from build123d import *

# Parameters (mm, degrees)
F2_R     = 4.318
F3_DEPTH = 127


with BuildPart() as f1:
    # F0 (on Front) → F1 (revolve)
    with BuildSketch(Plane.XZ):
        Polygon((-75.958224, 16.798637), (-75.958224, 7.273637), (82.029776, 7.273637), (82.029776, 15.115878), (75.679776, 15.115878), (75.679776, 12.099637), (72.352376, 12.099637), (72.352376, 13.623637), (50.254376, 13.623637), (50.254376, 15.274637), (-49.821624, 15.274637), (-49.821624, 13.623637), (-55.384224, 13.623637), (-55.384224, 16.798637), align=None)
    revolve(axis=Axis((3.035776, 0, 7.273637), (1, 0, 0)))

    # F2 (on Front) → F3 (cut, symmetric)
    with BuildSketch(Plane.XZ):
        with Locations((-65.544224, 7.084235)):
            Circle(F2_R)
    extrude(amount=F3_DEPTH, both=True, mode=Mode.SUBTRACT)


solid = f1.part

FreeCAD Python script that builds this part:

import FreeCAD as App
import Part
import Sketcher
Q = App.Units.Quantity


def add_polygon(sketch, points):
    """Adds a closed chain of lines whose ends are joined by coincident constraints."""
    first, n = sketch.GeometryCount, len(points)
    for a, b in zip(points, points[1:] + points[:1]):
        sketch.addGeometry(Part.LineSegment(App.Vector(*a, 0), App.Vector(*b, 0)), False)
    for i in range(n):
        sketch.addConstraint(Sketcher.Constraint("Coincident", first + i, 2, first + (i + 1) % n, 1))

doc = App.newDocument("Part")
params = doc.addObject("Spreadsheet::Sheet", "Params")
for row, (alias, value) in enumerate([
    ("sketch1_width", "6.22 in"),
    ("sketch1_width2", "0.25 in"),
    ("sketch1_width3", "0.87 in"),
    ("sketch1_width4", "3.94 in"),
    ("sketch1_width5", "0.81 in"),
    ("revolution_angle", "360 deg"),
    ("sketch2_diameter", "0.34 in"),
    ("pocket1_length", "10 in"),
], start=1):
    params.set(f"A{row}", alias)
    params.set(f"B{row}", "=" + value)
    params.setAlias(f"B{row}", alias)

body = doc.addObject("PartDesign::Body", "Body")

sketch1 = doc.addObject("Sketcher::SketchObject", "Sketch")
body.addObject(sketch1)
sketch1.AttachmentSupport = (doc.XZ_Plane, [""])
sketch1.MapMode = "FlatFace"
add_polygon(sketch1, [(-76, 16.8), (-76, 7.3), (82, 7.3), (82, 15.1), (75.7, 15.1), (75.7, 12.1), (72.4, 12.1), (72.4, 13.6), (50.3, 13.6), (50.3, 15.3), (-49.8, 15.3), (-49.8, 13.6), (-55.4, 13.6), (-55.4, 16.8)])
sketch1.addGeometry(Part.LineSegment(App.Vector(-76, 7.3, 0), App.Vector(82, 7.3, 0)), True)
sketch1.addConstraint(Sketcher.Constraint("Vertical", 0))
sketch1.addConstraint(Sketcher.Constraint("Horizontal", 1))
sketch1.addConstraint(Sketcher.Constraint("Vertical", 2))
sketch1.addConstraint(Sketcher.Constraint("Horizontal", 3))
sketch1.addConstraint(Sketcher.Constraint("Vertical", 4))
sketch1.addConstraint(Sketcher.Constraint("Horizontal", 5))
sketch1.addConstraint(Sketcher.Constraint("Vertical", 6))
sketch1.addConstraint(Sketcher.Constraint("Horizontal", 7))
sketch1.addConstraint(Sketcher.Constraint("Vertical", 8))
sketch1.addConstraint(Sketcher.Constraint("Horizontal", 9))
sketch1.addConstraint(Sketcher.Constraint("Vertical", 10))
sketch1.addConstraint(Sketcher.Constraint("Horizontal", 11))
sketch1.addConstraint(Sketcher.Constraint("Vertical", 12))
sketch1.addConstraint(Sketcher.Constraint("Horizontal", 13))
sketch1.addConstraint(Sketcher.Constraint("Horizontal", 14))
sketch1.addConstraint(Sketcher.Constraint("Coincident", 14, 1, 0, 2))
sketch1.addConstraint(Sketcher.Constraint("Horizontal", 7, 2, 10, 2))
sketch1.addConstraint(Sketcher.Constraint("Vertical", 2, 2, 14, 2))
sketch1.addConstraint(Sketcher.Constraint("DistanceX", 1, 1, 1, 2, Q("6.22 in")))
sketch1.addConstraint(Sketcher.Constraint("DistanceX", 3, 2, 3, 1, Q("0.25 in")))
sketch1.addConstraint(Sketcher.Constraint("DistanceX", 7, 2, 7, 1, Q("0.87 in")))
sketch1.addConstraint(Sketcher.Constraint("DistanceX", 9, 2, 9, 1, Q("3.94 in")))
sketch1.addConstraint(Sketcher.Constraint("DistanceX", 13, 2, 13, 1, Q("0.81 in")))
sketch1.addConstraint(Sketcher.Constraint("DistanceY", 6, 1, 6, 2, Q("0.06 in")))
sketch1.addConstraint(Sketcher.Constraint("DistanceX", 5, 2, 5, 1, Q("0.131 in")))
sketch1.addConstraint(Sketcher.Constraint("DistanceY", 0, 2, 0, 1, Q("0.375 in")))
sketch1.addConstraint(Sketcher.Constraint("DistanceY", 8, 1, 8, 2, Q("0.065 in")))
sketch1.addConstraint(Sketcher.Constraint("DistanceY", 12, 1, 12, 2, Q("0.125 in")))
sketch1.addConstraint(Sketcher.Constraint("DistanceY", 2, 1, 2, 2, Q("7.842241 mm")))
sketch1.addConstraint(Sketcher.Constraint("DistanceX", 0, 2, -1, 1, Q("75.958224 mm")))
sketch1.addConstraint(Sketcher.Constraint("DistanceY", -1, 1, 0, 2, Q("7.273637 mm")))
sketch1.setExpression("Constraints[32]", "Params.sketch1_width")
sketch1.setExpression("Constraints[33]", "Params.sketch1_width2")
sketch1.setExpression("Constraints[34]", "Params.sketch1_width3")
sketch1.setExpression("Constraints[35]", "Params.sketch1_width4")
sketch1.setExpression("Constraints[36]", "Params.sketch1_width5")
revolution = doc.addObject("PartDesign::Revolution", "Revolution")
body.addObject(revolution)
revolution.Profile = sketch1
revolution.ReferenceAxis = (sketch1, ["Axis0"])
revolution.setExpression("Angle", "Params.revolution_angle")

sketch2 = doc.addObject("Sketcher::SketchObject", "Sketch001")
body.addObject(sketch2)
sketch2.AttachmentSupport = (doc.XZ_Plane, [""])
sketch2.MapMode = "FlatFace"
sketch2.addGeometry(Part.Circle(App.Vector(-65.5, 7.1, 0), App.Vector(0, 0, 1), 4.3), False)
sketch2.addConstraint(Sketcher.Constraint("Diameter", 0, Q("0.34 in")))
sketch2.addConstraint(Sketcher.Constraint("DistanceX", 0, 3, -1, 1, Q("65.544224 mm")))
sketch2.addConstraint(Sketcher.Constraint("DistanceY", -1, 1, 0, 3, Q("7.084235 mm")))
sketch2.setExpression("Constraints[0]", "Params.sketch2_diameter")
pocket1 = doc.addObject("PartDesign::Pocket", "Pocket")
body.addObject(pocket1)
pocket1.Profile = sketch2
pocket1.setExpression("Length", "Params.pocket1_length")
pocket1.Midplane = True

doc.recompute()
